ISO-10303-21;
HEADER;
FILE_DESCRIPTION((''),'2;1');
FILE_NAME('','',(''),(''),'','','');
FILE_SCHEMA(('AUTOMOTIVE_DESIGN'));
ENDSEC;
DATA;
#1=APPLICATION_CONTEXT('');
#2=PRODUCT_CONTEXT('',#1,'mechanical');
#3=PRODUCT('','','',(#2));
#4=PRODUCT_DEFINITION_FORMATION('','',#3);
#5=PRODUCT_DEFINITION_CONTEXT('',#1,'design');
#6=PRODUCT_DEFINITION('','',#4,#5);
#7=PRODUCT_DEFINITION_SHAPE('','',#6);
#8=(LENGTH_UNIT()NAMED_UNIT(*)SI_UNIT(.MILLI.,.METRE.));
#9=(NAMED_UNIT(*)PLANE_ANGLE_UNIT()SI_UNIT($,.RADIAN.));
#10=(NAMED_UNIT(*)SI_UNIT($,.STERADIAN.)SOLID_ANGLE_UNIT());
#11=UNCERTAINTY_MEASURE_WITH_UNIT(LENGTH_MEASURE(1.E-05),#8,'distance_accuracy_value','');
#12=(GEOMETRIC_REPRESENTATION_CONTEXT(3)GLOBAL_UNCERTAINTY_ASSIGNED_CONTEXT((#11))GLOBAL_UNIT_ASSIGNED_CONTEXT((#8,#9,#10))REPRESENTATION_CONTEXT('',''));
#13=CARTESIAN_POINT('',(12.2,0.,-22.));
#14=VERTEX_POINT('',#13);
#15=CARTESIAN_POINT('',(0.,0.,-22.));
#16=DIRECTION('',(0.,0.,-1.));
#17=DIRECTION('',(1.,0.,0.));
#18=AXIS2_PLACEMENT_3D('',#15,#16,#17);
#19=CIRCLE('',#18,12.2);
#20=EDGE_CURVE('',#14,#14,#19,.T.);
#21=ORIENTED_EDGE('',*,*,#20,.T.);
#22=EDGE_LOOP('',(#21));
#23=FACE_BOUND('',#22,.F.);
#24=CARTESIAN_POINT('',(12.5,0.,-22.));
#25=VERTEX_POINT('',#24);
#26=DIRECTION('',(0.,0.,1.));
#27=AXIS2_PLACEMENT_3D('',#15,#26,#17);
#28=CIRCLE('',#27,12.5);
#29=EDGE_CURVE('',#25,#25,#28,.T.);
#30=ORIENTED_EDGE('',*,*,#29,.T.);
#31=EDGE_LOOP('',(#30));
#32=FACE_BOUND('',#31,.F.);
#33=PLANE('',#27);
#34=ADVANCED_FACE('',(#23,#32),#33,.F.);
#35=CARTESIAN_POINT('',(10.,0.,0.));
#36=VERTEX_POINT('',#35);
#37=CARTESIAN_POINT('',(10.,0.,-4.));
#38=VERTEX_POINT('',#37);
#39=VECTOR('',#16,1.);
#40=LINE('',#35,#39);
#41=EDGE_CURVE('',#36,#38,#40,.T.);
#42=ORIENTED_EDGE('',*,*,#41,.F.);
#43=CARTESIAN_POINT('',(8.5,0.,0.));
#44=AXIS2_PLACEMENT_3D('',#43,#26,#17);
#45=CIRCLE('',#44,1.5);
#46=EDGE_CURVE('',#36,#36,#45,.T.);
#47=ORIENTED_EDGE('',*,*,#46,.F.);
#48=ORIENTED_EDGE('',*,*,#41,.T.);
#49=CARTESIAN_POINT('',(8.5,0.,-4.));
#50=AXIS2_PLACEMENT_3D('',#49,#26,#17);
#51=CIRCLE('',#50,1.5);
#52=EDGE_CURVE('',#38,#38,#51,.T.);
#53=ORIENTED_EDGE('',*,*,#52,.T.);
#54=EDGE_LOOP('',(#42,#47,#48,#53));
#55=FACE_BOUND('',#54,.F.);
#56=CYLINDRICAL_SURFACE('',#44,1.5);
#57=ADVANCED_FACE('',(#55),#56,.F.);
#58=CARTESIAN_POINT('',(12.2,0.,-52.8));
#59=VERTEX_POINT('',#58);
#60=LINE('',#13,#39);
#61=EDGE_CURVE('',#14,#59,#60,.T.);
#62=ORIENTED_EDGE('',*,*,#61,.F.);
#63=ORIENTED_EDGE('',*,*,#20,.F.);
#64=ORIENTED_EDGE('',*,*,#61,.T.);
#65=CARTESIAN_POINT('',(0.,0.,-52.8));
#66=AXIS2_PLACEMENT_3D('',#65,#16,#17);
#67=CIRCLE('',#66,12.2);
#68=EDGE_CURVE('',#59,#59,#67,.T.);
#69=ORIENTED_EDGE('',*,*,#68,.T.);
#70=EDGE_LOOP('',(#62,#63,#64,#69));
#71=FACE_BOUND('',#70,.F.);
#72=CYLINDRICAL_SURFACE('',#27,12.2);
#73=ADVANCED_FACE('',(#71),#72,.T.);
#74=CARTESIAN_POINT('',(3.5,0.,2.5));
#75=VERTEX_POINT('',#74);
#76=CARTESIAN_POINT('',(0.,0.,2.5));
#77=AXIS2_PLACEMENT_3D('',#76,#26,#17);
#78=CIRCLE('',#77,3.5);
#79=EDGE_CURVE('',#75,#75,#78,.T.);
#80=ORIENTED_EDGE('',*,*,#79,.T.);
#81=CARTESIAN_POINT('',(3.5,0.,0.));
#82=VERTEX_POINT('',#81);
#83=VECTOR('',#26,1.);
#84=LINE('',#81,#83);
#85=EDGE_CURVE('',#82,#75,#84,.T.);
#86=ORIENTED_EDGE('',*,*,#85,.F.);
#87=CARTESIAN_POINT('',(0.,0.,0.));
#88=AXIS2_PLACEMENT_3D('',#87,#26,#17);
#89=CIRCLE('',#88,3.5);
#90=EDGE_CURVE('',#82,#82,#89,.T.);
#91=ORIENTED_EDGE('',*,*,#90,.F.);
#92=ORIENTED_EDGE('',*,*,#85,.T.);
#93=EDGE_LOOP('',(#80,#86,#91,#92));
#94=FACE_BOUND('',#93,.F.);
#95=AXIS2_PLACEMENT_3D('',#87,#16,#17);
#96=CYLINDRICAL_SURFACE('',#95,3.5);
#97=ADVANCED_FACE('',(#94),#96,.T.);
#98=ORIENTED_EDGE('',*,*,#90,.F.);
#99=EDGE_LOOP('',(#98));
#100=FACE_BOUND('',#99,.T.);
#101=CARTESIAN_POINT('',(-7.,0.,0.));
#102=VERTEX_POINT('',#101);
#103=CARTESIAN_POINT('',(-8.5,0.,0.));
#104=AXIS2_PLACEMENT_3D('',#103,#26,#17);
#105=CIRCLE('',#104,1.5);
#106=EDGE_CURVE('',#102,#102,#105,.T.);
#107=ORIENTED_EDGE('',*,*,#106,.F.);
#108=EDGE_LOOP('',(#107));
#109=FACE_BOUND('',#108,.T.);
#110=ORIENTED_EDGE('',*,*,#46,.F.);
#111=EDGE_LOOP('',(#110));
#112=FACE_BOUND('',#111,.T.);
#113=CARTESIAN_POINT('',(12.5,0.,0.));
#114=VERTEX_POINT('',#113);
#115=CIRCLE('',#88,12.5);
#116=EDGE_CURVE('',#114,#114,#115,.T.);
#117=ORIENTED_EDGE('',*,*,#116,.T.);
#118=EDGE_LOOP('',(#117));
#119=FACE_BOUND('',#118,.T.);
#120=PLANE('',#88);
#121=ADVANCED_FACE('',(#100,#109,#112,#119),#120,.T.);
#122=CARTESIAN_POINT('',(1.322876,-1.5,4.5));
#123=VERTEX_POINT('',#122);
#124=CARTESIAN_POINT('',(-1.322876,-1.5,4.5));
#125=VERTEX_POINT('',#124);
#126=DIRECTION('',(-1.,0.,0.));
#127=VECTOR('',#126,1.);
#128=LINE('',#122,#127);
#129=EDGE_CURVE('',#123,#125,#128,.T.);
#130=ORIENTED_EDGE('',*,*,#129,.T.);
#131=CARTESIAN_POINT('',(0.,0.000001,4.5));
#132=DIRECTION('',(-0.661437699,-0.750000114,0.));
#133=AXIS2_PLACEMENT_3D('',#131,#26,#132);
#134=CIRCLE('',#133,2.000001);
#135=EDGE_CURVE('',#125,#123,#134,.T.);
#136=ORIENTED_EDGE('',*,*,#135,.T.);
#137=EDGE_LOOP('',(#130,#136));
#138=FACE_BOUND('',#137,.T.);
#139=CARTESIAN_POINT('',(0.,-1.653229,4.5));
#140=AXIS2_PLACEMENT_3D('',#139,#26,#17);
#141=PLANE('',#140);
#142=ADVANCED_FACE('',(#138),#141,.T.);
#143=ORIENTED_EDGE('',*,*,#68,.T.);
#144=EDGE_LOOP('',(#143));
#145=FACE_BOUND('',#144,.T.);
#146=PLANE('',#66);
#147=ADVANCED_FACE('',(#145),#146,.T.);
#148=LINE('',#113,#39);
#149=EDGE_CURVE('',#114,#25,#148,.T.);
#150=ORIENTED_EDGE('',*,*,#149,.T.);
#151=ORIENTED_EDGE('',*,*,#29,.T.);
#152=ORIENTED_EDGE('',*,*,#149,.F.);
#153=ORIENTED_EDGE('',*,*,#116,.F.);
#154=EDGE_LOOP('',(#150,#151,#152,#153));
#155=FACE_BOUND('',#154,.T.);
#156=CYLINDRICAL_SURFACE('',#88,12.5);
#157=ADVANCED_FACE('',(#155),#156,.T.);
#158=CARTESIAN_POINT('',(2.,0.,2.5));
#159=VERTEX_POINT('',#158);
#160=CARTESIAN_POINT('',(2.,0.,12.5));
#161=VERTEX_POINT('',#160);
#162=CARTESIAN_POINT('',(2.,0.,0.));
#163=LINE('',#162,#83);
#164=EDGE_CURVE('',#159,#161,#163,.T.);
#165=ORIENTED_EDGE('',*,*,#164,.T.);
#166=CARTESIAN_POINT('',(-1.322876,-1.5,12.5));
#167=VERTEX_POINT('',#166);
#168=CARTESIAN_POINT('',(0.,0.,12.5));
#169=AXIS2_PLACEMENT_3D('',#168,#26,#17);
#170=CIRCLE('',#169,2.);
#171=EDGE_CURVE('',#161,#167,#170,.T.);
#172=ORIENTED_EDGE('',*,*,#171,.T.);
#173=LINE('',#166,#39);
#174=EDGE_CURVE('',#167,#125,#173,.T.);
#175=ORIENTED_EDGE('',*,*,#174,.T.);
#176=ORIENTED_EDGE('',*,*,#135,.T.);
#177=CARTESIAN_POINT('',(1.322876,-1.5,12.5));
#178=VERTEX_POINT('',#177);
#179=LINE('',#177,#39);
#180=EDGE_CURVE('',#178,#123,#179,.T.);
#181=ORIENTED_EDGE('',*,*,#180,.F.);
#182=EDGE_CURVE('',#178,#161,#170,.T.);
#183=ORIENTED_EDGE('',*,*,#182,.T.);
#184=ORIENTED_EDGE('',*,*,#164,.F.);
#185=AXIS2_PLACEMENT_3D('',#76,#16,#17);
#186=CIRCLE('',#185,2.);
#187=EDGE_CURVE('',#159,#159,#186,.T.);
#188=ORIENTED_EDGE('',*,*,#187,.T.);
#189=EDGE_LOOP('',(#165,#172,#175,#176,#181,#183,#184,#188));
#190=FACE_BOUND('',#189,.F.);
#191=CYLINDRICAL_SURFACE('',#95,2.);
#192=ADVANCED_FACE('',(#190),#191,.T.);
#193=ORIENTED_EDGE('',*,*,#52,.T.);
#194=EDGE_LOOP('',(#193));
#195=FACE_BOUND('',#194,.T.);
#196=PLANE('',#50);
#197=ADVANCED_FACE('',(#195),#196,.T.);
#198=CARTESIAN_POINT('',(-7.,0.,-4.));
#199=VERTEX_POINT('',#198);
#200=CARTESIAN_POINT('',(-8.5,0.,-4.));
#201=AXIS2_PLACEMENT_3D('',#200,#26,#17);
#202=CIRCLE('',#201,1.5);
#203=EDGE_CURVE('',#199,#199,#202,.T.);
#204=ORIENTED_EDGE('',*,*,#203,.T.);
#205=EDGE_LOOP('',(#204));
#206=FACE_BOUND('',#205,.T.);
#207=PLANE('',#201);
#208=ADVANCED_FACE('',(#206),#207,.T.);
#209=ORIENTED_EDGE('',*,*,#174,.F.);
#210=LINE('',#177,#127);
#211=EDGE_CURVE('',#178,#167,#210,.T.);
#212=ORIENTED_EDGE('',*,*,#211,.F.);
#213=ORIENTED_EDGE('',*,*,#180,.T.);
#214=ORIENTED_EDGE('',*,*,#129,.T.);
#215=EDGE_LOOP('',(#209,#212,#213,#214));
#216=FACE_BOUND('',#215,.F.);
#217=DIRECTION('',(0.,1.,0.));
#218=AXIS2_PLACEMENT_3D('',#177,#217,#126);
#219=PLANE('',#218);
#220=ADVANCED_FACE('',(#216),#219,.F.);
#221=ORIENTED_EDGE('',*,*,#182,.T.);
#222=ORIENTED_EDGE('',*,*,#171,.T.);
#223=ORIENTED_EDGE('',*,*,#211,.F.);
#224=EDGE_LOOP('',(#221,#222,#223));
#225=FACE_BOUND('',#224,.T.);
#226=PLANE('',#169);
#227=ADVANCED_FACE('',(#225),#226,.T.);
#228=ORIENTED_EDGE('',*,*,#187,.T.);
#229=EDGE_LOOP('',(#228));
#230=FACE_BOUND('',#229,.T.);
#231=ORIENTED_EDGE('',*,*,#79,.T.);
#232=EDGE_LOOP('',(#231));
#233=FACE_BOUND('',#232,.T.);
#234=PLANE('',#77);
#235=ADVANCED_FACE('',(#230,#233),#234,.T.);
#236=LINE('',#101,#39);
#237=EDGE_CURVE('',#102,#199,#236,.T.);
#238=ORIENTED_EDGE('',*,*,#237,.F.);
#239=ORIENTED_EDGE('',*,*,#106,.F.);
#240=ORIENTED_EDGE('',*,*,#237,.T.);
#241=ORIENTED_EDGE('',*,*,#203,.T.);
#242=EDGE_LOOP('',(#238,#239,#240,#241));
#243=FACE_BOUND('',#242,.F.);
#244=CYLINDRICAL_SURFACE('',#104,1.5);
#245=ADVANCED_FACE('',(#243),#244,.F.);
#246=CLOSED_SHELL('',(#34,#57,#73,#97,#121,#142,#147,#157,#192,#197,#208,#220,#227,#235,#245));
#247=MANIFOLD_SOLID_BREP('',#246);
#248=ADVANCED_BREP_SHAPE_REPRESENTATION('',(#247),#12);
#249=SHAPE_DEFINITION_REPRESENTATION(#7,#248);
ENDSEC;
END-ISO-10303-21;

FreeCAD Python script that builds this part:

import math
import FreeCAD as App
import Part
import Sketcher
from FreeCAD import Vector
Q = App.Units.Quantity

doc = App.newDocument("Part")
params = doc.addObject("Spreadsheet::Sheet", "Params")
for row, (alias, value) in enumerate([
    ("sketch1_diameter", "25 mm"),
    ("pad1_length", "22 mm"),
    ("sketch2_diameter", "24.4 mm"),
    ("pad2_length", "30.8 mm"),
    ("sketch3_diameter", "7 mm"),
    ("pad3_length", "2.5 mm"),
    ("sketch4_diameter", "4 mm"),
    ("pad4_length", "12.5 mm"),
    ("sketch5_radius", "2.000001 mm"),
    ("pocket1_length", "8 mm"),
    ("sketch6_diameter", "3 mm"),
    ("pocket2_length", "4 mm"),
], start=1):
    params.set(f"A{row}", alias)
    params.set(f"B{row}", "=" + value)
    params.setAlias(f"B{row}", alias)

body = doc.addObject("PartDesign::Body", "Body")

# Sketch on XY plane
sketch1 = body.newObject("Sketcher::SketchObject", "Sketch")
sketch1.AttachmentSupport = (doc.getObject("XY_Plane"), [""])
sketch1.MapMode = "FlatFace"
sketch1.addGeometry(Part.Circle(Vector(0, 0, 0), Vector(0, 0, 1), 12.5), False)
sketch1.addConstraint([
    Sketcher.Constraint("Coincident", 0, 3, -1, 1),
    Sketcher.Constraint("Diameter", 0, Q("25 mm")),
])
sketch1.setExpression("Constraints[1]", "Params.sketch1_diameter")
pad1 = body.newObject("PartDesign::Pad", "Pad")
pad1.Profile = sketch1
pad1.setExpression("Length", "Params.pad1_length")
pad1.Reversed = True

# Sketch on XY plane
sketch2 = body.newObject("Sketcher::SketchObject", "Sketch001")
sketch2.AttachmentSupport = (doc.getObject("XY_Plane"), [""])
sketch2.MapMode = "FlatFace"
sketch2.AttachmentOffset = App.Placement(Vector(0, 0, -22), App.Rotation())
sketch2.addGeometry(Part.Circle(Vector(0, 0, 0), Vector(0, 0, 1), 12.2), False)
sketch2.addConstraint([
    Sketcher.Constraint("Coincident", 0, 3, -1, 1),
    Sketcher.Constraint("Diameter", 0, Q("24.4 mm")),
])
sketch2.setExpression("Constraints[1]", "Params.sketch2_diameter")
pad2 = body.newObject("PartDesign::Pad", "Pad001")
pad2.Profile = sketch2
pad2.setExpression("Length", "Params.pad2_length")
pad2.Reversed = True

# Sketch on XY plane
sketch3 = body.newObject("Sketcher::SketchObject", "Sketch002")
sketch3.AttachmentSupport = (doc.getObject("XY_Plane"), [""])
sketch3.MapMode = "FlatFace"
sketch3.addGeometry(Part.Circle(Vector(0, 0, 0), Vector(0, 0, 1), 3.5), False)
sketch3.addConstraint([
    Sketcher.Constraint("Coincident", 0, 3, -1, 1),
    Sketcher.Constraint("Diameter", 0, Q("7 mm")),
])
sketch3.setExpression("Constraints[1]", "Params.sketch3_diameter")
pad3 = body.newObject("PartDesign::Pad", "Pad002")
pad3.Profile = sketch3
pad3.setExpression("Length", "Params.pad3_length")

# Sketch on XY plane
sketch4 = body.newObject("Sketcher::SketchObject", "Sketch003")
sketch4.AttachmentSupport = (doc.getObject("XY_Plane"), [""])
sketch4.MapMode = "FlatFace"
sketch4.addGeometry(Part.Circle(Vector(0, 0, 0), Vector(0, 0, 1), 2), False)
sketch4.addConstraint([
    Sketcher.Constraint("Coincident", 0, 3, -1, 1),
    Sketcher.Constraint("Diameter", 0, Q("4 mm")),
])
sketch4.setExpression("Constraints[1]", "Params.sketch4_diameter")
pad4 = body.newObject("PartDesign::Pad", "Pad003")
pad4.Profile = sketch4
pad4.setExpression("Length", "Params.pad4_length")

# Sketch on XY plane
sketch5 = body.newObject("Sketcher::SketchObject", "Sketch004")
sketch5.AttachmentSupport = (doc.getObject("XY_Plane"), [""])
sketch5.MapMode = "FlatFace"
sketch5.AttachmentOffset = App.Placement(Vector(0, 0, 12.5), App.Rotation())
sketch5.addGeometry([
    Part.LineSegment(Vector(1.322876, -1.5, 0), Vector(-1.322876, -1.5, 0)),
    Part.ArcOfCircle(Part.Circle(Vector(0, 0.000001, 0), Vector(0, 0, 1), 2.000001), math.radians(-131.409612), math.radians(-48.590388)),
], False)
sketch5.addConstraint([
    Sketcher.Constraint("Coincident", 0, 1, 1, 2),
    Sketcher.Constraint("Coincident", 1, 1, 0, 2),
    Sketcher.Constraint("Horizontal", 0),
    Sketcher.Constraint("Coincident", 1, 3, -1, 1),
    Sketcher.Constraint("Radius", 1, Q("2.000001 mm")),
    Sketcher.Constraint("DistanceY", 0, 1, -1, 1, Q("1.5 mm")),
])
sketch5.setExpression("Constraints[4]", "Params.sketch5_radius")
pocket1 = body.newObject("PartDesign::Pocket", "Pocket")
pocket1.Profile = sketch5
pocket1.setExpression("Length", "Params.pocket1_length")

# Sketch on XY plane
sketch6 = body.newObject("Sketcher::SketchObject", "Sketch005")
sketch6.AttachmentSupport = (doc.getObject("XY_Plane"), [""])
sketch6.MapMode = "FlatFace"
sketch6.addGeometry([
    Part.Circle(Vector(-8.5, 0, 0), Vector(0, 0, 1), 1.5),
    Part.Circle(Vector(8.5, 0, 0), Vector(0, 0, 1), 1.5),
], False)
sketch6.addConstraint([
    Sketcher.Constraint("Equal", 0, 1),
    Sketcher.Constraint("Symmetric", 0, 3, 1, 3, -1, 1),
    Sketcher.Constraint("PointOnObject", 0, 3, -1),
    Sketcher.Constraint("Diameter", 0, Q("3 mm")),
    Sketcher.Constraint("DistanceX", 0, 3, 1, 3, Q("17 mm")),
])
sketch6.setExpression("Constraints[3]", "Params.sketch6_diameter")
pocket2 = body.newObject("PartDesign::Pocket", "Pocket001")
pocket2.Profile = sketch6
pocket2.setExpression("Length", "Params.pocket2_length")

doc.recompute()
